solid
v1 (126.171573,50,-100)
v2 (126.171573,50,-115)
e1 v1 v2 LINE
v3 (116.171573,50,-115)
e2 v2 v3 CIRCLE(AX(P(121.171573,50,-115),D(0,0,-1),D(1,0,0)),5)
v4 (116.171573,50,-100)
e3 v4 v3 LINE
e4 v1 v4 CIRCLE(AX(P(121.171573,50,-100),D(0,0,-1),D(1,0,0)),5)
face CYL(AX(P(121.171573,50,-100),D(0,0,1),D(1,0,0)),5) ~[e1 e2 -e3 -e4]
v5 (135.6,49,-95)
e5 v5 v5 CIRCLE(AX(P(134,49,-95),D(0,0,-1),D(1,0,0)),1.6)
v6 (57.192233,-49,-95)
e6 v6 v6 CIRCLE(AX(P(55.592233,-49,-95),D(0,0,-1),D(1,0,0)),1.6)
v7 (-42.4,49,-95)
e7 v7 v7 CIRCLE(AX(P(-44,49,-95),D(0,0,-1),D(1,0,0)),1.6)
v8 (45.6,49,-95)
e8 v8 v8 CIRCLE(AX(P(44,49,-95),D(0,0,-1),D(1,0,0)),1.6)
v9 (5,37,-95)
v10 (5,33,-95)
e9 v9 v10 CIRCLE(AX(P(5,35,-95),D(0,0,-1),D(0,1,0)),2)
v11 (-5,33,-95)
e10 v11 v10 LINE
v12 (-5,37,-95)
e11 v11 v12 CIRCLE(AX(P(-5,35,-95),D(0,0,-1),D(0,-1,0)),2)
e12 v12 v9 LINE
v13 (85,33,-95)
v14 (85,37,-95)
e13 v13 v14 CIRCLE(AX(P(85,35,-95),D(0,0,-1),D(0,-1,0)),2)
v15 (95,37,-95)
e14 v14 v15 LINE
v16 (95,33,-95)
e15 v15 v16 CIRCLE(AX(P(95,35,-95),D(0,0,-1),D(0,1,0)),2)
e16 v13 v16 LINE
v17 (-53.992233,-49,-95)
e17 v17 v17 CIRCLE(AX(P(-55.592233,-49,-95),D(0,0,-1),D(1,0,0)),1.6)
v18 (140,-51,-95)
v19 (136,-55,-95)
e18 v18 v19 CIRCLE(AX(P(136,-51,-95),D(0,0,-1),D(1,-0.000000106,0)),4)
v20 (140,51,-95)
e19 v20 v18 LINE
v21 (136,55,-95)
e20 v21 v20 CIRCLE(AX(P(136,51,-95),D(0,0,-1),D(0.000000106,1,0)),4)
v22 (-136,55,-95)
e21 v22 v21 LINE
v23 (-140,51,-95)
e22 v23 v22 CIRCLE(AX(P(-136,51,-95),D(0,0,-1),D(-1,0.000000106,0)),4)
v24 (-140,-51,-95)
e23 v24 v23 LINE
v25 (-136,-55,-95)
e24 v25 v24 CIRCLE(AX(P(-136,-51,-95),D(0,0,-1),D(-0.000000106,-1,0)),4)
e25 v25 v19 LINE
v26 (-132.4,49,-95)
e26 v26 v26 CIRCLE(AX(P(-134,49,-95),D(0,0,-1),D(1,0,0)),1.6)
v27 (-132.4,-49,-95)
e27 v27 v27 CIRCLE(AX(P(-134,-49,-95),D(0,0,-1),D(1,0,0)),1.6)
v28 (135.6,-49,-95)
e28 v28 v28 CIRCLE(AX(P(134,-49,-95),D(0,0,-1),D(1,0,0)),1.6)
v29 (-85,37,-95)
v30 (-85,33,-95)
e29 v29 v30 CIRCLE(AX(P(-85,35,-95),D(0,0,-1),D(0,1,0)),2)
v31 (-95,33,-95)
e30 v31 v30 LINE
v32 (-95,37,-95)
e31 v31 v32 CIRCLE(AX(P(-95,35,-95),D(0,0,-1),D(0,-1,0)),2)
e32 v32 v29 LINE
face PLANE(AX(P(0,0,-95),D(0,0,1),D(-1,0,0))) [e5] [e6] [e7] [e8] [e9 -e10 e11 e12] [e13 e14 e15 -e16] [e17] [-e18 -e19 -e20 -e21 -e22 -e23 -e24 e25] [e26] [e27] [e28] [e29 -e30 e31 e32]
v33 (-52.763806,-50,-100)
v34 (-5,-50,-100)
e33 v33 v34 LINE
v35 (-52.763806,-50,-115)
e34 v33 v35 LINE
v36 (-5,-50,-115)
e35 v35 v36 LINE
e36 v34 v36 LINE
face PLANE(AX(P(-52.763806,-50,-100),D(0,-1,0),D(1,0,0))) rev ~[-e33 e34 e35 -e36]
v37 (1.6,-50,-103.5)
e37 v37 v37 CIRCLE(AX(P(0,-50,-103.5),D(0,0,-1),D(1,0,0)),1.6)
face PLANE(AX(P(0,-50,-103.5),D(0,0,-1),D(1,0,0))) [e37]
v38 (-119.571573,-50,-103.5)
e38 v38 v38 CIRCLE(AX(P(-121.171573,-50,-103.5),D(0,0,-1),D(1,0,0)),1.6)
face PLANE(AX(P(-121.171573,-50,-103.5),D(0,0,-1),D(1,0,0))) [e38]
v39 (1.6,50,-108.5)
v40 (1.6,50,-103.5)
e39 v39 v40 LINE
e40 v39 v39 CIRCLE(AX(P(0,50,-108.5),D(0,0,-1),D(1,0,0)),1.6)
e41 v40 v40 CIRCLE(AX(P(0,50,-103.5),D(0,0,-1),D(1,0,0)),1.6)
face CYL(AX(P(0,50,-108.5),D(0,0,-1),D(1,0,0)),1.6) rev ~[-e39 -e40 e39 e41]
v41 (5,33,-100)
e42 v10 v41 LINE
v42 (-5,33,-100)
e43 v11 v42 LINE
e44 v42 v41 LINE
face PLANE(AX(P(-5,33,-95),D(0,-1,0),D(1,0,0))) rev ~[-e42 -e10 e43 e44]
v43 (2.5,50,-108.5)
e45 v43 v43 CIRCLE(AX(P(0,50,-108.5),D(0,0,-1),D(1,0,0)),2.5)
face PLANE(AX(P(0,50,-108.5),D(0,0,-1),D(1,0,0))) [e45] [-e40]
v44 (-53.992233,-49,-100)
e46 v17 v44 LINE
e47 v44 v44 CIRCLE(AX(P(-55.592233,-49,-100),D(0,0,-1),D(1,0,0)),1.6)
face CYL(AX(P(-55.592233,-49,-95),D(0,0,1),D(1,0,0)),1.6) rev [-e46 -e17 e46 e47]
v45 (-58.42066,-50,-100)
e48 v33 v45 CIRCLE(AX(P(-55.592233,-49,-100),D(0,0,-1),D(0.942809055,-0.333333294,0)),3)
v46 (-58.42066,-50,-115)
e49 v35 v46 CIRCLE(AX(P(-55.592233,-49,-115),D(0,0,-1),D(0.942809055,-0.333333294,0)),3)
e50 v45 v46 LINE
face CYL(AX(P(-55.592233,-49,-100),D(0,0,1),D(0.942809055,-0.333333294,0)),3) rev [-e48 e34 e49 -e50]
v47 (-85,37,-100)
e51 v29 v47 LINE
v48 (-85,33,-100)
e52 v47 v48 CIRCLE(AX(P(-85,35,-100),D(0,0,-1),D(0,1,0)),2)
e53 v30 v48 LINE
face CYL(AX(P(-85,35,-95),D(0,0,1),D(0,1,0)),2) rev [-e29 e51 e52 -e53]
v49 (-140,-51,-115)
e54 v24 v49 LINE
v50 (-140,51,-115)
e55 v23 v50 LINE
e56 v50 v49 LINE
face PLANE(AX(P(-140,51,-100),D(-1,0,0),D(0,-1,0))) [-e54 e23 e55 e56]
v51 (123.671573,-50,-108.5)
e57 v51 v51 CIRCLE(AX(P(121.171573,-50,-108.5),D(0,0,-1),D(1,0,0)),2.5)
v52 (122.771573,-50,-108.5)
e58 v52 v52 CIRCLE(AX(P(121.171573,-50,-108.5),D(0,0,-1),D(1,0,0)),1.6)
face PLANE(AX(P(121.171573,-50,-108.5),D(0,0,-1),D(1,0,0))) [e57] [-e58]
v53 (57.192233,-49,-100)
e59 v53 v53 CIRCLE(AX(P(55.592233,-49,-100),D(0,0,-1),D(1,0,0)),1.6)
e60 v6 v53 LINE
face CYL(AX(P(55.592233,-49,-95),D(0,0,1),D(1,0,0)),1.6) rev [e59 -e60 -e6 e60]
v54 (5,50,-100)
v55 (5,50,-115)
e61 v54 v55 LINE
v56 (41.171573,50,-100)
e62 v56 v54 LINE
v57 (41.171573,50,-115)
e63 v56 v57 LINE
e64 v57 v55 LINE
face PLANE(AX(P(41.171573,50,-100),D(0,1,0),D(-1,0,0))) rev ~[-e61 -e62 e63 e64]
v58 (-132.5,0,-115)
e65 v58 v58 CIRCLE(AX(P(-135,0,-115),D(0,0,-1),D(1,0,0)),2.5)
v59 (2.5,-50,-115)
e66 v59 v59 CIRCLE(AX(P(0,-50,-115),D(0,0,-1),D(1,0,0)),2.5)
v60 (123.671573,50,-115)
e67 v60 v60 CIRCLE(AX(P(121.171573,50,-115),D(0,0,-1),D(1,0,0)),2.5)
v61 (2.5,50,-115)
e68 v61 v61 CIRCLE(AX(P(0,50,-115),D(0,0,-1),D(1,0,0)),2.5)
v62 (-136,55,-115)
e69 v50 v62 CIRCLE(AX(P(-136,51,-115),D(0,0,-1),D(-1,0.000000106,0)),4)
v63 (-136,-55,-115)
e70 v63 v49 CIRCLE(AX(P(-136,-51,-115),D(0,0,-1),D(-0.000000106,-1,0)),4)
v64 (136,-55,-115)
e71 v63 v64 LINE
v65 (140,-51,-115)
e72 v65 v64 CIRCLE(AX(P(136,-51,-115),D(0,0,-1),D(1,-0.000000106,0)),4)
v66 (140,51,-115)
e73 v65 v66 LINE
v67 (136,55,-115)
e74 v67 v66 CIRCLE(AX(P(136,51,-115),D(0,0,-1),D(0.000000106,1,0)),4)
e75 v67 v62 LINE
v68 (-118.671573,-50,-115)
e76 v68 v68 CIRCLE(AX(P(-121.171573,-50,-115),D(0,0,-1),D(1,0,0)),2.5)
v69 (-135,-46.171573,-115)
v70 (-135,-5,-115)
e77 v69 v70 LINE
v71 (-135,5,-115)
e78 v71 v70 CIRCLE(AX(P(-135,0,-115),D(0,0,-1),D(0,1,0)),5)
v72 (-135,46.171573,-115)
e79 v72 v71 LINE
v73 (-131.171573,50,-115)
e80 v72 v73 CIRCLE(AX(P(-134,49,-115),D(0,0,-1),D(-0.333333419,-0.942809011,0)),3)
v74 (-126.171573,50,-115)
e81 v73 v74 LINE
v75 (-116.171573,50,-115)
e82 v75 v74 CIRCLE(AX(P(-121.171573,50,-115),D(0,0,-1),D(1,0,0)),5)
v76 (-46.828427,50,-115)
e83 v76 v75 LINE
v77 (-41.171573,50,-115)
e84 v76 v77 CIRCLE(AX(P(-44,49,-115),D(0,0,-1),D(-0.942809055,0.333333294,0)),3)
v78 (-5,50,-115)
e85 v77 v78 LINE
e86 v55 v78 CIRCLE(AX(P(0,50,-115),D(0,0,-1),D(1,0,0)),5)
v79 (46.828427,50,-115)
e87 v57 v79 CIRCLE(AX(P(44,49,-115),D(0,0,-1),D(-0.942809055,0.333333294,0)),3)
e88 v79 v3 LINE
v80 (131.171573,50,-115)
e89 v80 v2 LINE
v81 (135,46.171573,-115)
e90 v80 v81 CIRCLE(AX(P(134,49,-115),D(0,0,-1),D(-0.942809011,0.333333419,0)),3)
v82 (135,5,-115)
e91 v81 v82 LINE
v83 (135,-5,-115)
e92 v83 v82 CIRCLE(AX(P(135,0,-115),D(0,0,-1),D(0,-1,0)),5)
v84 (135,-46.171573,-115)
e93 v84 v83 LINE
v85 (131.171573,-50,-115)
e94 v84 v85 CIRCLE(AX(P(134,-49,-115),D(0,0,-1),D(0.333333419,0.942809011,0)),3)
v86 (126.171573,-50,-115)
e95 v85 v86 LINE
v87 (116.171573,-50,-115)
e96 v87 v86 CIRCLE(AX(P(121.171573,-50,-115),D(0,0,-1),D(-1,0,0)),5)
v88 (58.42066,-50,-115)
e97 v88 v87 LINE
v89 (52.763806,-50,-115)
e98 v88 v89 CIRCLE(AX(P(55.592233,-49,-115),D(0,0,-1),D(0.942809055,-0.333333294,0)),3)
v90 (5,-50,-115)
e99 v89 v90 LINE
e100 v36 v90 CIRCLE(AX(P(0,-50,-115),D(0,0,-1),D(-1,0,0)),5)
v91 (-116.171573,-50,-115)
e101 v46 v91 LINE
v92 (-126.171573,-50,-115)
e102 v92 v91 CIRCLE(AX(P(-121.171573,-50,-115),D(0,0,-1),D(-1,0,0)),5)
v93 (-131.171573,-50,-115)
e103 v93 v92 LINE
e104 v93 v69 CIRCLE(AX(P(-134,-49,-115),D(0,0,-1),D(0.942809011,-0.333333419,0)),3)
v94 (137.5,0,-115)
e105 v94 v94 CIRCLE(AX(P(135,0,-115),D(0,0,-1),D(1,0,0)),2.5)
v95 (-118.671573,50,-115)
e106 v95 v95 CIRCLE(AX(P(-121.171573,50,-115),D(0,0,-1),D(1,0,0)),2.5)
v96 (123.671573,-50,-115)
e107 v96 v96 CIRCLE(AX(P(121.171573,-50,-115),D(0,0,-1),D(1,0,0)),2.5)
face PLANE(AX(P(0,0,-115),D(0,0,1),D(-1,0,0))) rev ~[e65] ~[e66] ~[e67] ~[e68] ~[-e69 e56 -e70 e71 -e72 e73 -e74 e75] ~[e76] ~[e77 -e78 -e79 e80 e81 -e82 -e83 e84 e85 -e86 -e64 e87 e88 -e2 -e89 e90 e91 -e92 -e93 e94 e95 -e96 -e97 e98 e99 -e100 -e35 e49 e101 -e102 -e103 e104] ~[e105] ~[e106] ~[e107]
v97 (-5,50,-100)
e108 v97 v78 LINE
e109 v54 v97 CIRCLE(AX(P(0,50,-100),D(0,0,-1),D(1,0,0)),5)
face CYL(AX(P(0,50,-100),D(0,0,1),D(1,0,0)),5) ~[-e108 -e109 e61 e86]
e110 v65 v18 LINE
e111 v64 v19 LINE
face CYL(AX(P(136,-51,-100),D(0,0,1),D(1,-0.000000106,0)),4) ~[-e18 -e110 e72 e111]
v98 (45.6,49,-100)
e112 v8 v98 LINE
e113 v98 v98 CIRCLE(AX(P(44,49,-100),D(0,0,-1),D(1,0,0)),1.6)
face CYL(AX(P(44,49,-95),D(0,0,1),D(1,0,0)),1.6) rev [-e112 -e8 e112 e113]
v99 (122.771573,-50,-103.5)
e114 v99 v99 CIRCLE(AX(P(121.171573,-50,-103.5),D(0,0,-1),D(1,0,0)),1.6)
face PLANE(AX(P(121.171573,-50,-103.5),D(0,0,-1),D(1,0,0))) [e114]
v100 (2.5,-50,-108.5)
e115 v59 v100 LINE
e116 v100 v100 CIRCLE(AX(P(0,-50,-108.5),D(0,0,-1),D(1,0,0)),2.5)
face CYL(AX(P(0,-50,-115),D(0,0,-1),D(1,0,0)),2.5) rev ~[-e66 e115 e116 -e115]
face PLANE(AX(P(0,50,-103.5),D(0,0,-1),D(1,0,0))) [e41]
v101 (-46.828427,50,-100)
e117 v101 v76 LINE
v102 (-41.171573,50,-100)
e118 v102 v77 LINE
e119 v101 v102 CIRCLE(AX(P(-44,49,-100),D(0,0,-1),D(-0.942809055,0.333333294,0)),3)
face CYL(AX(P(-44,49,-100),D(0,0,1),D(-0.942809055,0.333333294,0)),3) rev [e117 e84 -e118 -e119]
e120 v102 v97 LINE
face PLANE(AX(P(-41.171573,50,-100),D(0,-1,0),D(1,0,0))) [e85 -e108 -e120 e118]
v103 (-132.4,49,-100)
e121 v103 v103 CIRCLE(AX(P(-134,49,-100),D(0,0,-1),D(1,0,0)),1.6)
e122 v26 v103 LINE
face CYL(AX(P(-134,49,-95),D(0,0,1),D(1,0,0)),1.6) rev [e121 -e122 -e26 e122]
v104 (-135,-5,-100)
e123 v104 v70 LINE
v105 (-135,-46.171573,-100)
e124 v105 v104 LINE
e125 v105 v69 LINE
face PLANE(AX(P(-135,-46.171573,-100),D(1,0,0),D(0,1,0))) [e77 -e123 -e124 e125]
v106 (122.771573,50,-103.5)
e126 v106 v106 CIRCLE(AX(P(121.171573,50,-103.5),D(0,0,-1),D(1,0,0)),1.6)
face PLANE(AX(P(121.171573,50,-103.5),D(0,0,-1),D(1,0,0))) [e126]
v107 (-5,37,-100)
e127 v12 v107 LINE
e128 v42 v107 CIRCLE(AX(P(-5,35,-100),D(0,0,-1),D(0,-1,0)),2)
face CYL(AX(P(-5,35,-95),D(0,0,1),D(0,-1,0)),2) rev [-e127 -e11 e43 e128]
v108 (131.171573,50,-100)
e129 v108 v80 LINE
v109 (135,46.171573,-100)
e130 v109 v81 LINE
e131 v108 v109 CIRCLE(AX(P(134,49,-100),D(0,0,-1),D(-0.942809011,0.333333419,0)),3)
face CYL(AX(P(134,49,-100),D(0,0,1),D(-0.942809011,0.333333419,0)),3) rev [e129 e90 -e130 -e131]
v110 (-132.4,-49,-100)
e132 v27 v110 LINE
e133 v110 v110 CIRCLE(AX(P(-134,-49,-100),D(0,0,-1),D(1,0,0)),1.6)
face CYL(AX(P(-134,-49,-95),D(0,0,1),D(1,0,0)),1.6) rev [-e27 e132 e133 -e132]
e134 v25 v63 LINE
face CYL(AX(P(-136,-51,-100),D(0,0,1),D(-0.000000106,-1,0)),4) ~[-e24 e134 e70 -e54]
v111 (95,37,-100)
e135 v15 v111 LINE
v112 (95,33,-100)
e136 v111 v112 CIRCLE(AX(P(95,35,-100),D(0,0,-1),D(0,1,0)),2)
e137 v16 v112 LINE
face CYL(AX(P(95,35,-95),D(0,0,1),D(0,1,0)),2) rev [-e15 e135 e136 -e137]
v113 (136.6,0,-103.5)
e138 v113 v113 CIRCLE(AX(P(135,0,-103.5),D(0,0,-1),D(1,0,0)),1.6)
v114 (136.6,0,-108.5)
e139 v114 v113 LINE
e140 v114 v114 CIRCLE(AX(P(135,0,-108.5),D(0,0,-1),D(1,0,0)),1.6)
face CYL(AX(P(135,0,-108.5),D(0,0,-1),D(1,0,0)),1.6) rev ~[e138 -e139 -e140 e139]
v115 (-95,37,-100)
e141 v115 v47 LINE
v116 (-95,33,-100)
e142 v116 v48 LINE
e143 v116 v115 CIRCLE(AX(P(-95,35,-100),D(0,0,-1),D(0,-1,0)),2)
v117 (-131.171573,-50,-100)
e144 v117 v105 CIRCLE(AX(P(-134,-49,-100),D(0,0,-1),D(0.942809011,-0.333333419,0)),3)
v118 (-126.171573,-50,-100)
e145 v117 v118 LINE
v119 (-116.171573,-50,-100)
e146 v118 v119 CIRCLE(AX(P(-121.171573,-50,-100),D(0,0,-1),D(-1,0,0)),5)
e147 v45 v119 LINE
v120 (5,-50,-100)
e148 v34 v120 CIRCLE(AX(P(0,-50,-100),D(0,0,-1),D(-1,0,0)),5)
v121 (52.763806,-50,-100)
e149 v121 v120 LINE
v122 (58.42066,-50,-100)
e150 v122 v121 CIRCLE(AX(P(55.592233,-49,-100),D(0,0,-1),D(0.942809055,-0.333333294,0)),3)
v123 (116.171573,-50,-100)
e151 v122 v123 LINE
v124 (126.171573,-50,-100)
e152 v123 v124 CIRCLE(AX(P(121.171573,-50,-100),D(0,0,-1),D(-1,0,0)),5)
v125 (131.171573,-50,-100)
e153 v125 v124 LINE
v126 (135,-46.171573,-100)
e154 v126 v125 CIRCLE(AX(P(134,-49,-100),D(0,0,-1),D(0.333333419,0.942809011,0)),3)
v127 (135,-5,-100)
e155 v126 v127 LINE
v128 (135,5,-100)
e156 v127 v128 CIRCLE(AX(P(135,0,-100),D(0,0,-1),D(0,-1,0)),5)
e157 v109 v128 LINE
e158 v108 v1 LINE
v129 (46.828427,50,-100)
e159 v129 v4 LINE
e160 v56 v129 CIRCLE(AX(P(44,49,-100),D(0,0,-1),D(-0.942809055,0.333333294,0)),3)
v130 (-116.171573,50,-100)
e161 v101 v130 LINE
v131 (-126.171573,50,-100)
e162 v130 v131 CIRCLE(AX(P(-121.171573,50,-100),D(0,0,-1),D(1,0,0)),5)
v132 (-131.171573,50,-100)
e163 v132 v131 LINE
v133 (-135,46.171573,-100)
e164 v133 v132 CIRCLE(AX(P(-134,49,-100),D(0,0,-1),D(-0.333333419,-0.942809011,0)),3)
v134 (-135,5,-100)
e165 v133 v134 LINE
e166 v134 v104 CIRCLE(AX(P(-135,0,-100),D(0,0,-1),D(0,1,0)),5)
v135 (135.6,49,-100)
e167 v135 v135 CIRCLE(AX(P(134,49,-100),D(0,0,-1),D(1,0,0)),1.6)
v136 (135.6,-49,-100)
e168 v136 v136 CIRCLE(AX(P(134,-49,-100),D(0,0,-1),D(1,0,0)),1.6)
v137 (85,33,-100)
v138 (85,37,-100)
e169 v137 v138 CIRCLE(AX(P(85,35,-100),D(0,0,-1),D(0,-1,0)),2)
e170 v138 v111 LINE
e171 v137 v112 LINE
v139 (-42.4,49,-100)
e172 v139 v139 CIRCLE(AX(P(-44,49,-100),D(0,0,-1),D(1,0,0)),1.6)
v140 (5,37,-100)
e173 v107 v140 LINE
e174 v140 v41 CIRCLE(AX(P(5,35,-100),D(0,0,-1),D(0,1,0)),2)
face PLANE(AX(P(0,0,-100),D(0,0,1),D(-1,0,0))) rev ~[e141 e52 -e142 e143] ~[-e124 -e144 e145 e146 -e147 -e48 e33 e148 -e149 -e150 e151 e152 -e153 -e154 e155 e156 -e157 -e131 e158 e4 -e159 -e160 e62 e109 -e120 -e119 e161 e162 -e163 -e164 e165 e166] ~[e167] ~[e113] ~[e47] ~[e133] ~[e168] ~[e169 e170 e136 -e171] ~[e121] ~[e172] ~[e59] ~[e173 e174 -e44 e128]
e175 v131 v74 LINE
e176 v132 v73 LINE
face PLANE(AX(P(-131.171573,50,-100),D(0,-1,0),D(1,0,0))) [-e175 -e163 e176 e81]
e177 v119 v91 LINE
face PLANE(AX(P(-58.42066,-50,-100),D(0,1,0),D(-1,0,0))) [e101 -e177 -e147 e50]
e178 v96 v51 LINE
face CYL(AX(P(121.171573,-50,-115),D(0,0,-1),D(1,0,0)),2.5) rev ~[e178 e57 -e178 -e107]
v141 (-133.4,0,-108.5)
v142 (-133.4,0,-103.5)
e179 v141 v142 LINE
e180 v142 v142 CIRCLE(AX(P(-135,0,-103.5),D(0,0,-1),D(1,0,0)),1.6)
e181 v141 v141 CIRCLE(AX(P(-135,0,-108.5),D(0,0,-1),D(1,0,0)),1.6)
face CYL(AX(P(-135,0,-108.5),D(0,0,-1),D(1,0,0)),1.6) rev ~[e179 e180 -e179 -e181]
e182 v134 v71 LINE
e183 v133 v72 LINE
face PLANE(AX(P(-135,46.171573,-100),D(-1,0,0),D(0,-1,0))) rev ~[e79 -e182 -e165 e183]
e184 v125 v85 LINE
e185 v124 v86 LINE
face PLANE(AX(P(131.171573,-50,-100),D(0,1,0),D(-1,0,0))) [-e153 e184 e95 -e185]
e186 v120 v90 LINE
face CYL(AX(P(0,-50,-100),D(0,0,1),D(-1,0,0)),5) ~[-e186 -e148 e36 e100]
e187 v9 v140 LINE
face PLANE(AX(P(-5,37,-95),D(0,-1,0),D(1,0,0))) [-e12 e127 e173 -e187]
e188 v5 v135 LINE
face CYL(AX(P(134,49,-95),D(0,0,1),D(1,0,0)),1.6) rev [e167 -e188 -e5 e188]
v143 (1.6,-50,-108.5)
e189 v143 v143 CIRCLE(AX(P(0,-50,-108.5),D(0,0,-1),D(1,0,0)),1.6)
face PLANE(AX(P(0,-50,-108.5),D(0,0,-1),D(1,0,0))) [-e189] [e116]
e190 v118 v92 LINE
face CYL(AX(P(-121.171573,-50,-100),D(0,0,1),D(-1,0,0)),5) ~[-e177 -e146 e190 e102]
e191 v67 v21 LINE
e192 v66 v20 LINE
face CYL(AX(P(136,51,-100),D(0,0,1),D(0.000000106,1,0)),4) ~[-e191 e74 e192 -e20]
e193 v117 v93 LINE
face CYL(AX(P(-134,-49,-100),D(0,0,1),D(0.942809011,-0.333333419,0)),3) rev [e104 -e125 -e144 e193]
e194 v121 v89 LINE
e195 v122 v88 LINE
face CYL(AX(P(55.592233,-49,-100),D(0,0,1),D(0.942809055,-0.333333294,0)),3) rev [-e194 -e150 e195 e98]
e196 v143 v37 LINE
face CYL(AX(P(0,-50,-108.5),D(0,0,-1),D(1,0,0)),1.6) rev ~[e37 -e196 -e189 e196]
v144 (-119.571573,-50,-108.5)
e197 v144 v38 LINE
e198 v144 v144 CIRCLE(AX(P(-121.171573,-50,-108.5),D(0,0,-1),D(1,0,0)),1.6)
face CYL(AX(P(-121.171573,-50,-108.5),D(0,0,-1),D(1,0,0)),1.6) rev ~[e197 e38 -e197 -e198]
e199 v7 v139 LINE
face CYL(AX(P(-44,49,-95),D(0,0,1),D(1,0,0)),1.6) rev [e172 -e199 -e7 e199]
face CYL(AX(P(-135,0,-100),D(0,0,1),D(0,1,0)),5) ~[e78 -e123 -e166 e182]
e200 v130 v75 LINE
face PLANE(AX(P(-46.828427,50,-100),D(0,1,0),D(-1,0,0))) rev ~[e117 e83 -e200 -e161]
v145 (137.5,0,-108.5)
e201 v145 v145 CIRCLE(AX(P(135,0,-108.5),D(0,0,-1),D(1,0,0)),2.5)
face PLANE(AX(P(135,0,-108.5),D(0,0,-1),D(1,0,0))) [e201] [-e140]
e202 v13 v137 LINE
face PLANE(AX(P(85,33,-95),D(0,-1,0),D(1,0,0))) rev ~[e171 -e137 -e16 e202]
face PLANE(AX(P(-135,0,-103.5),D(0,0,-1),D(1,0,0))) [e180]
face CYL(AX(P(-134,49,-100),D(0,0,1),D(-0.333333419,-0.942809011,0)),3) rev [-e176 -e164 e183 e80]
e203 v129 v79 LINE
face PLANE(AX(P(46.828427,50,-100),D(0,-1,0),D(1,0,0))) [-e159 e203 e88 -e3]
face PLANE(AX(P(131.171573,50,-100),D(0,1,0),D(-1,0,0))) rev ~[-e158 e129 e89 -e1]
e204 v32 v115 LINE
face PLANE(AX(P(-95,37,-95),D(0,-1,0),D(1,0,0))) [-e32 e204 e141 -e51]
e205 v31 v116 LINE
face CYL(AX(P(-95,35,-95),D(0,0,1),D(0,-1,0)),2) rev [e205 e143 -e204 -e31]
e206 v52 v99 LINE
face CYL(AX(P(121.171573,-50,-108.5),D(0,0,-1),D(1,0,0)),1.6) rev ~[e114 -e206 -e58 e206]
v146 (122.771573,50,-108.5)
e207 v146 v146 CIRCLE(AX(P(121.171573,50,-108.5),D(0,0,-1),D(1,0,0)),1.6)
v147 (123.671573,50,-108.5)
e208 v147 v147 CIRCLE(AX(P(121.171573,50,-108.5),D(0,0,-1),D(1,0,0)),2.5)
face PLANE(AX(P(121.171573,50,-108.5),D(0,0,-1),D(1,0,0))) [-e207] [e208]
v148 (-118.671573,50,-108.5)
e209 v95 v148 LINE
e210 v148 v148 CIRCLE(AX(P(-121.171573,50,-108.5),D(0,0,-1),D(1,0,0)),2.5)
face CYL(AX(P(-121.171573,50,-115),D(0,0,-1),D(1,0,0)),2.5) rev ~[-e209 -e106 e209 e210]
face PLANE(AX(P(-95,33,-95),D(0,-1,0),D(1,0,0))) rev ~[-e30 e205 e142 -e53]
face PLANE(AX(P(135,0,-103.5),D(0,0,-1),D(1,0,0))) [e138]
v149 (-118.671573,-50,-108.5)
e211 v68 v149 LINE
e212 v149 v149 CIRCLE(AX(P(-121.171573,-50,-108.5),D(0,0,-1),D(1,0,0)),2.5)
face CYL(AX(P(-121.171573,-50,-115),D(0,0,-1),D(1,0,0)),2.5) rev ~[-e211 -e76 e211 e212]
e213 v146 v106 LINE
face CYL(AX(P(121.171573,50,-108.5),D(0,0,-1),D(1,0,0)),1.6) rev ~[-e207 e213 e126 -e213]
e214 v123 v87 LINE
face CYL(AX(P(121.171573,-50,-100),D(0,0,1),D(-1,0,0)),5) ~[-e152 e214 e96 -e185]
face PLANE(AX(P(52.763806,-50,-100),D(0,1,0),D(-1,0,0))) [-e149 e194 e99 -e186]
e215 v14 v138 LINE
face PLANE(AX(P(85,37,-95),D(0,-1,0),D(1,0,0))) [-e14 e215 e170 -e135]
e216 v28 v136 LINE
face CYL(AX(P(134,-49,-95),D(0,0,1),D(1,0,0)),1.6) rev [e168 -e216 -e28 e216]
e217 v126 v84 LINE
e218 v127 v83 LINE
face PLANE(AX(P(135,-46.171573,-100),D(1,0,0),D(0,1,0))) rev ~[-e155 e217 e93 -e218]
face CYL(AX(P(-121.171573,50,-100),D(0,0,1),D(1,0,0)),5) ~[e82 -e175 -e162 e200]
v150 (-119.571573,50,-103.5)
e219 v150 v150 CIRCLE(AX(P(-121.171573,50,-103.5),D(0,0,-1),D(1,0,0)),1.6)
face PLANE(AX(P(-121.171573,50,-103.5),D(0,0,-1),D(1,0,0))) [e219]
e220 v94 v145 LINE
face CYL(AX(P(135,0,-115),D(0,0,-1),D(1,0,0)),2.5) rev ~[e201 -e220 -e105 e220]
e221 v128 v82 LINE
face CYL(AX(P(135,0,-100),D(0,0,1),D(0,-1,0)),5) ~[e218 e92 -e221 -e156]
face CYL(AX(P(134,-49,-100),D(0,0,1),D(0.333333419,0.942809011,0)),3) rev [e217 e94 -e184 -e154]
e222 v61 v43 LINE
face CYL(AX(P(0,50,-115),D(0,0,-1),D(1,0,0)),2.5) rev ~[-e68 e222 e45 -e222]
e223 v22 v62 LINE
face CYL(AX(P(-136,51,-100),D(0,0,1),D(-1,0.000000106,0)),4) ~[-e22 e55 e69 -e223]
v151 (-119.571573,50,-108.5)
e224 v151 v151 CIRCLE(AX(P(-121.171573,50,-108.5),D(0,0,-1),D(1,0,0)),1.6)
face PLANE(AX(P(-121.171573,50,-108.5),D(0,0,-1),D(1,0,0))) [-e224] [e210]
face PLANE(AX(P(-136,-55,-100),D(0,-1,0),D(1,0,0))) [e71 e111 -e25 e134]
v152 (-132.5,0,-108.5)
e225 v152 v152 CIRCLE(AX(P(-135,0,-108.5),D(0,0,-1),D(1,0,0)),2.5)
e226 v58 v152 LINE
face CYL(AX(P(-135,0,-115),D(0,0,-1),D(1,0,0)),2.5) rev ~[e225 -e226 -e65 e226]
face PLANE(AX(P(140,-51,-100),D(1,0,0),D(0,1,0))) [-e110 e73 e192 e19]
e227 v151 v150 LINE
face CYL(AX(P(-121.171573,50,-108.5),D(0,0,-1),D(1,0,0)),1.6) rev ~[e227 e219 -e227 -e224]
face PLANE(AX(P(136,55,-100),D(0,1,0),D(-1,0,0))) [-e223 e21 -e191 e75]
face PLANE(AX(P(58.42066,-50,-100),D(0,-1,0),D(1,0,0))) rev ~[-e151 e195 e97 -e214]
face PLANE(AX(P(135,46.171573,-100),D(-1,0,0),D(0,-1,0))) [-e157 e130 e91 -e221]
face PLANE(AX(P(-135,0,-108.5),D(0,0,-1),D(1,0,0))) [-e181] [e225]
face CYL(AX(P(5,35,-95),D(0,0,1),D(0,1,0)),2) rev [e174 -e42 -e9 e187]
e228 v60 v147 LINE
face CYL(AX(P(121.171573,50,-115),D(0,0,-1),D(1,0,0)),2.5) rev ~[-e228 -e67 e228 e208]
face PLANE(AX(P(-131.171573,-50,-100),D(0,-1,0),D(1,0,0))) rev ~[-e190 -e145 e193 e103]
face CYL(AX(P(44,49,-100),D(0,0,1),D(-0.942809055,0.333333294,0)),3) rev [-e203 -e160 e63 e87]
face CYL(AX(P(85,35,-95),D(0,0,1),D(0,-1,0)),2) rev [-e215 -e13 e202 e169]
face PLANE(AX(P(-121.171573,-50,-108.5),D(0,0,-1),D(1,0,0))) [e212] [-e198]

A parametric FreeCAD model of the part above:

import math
import FreeCAD as App
import Part
import Sketcher
Q = App.Units.Quantity

doc = App.newDocument("Part")
body = doc.addObject("PartDesign::Body", "Body")

sketch1 = body.newObject("Sketcher::SketchObject", "Sketch")
sketch1.AttachmentSupport = (doc.getObject("XY_Plane"), [""])
sketch1.MapMode = "FlatFace"
sketch1.AttachmentOffset = App.Placement(App.Vector(0, 0, -95), App.Rotation())
sketch1.addGeometry(Part.LineSegment(App.Vector(136, -55, 0), App.Vector(-136, -55, 0)), False)
sketch1.addGeometry(Part.ArcOfCircle(Part.Circle(App.Vector(-136, -51, 0), App.Vector(0, 0, 1), 4), math.radians(-180), math.radians(-90)), False)
sketch1.addGeometry(Part.LineSegment(App.Vector(-140, -51, 0), App.Vector(-140, 51, 0)), False)
sketch1.addGeometry(Part.ArcOfCircle(Part.Circle(App.Vector(-136, 51, 0), App.Vector(0, 0, 1), 4), math.radians(90), math.radians(180)), False)
sketch1.addGeometry(Part.LineSegment(App.Vector(-136, 55, 0), App.Vector(136, 55, 0)), False)
sketch1.addGeometry(Part.ArcOfCircle(Part.Circle(App.Vector(136, 51, 0), App.Vector(0, 0, 1), 4), math.radians(0), math.radians(90)), False)
sketch1.addGeometry(Part.LineSegment(App.Vector(140, 51, 0), App.Vector(140, -51, 0)), False)
sketch1.addGeometry(Part.ArcOfCircle(Part.Circle(App.Vector(136, -51, 0), App.Vector(0, 0, 1), 4), math.radians(-90), math.radians(0)), False)
sketch1.addGeometry(Part.Circle(App.Vector(134, 49, 0), App.Vector(0, 0, 1), 1.6), False)
sketch1.addGeometry(Part.LineSegment(App.Vector(85, 33, 0), App.Vector(95, 33, 0)), False)
sketch1.addGeometry(Part.ArcOfCircle(Part.Circle(App.Vector(95, 35, 0), App.Vector(0, 0, 1), 2), math.radians(-90), math.radians(90)), False)
sketch1.addGeometry(Part.LineSegment(App.Vector(95, 37, 0), App.Vector(85, 37, 0)), False)
sketch1.addGeometry(Part.ArcOfCircle(Part.Circle(App.Vector(85, 35, 0), App.Vector(0, 0, 1), 2), math.radians(90), math.radians(270)), False)
sketch1.addGeometry(Part.Circle(App.Vector(44, 49, 0), App.Vector(0, 0, 1), 1.6), False)
sketch1.addGeometry(Part.LineSegment(App.Vector(-5, 33, 0), App.Vector(5, 33, 0)), False)
sketch1.addGeometry(Part.ArcOfCircle(Part.Circle(App.Vector(5, 35, 0), App.Vector(0, 0, 1), 2), math.radians(-90), math.radians(90)), False)
sketch1.addGeometry(Part.LineSegment(App.Vector(5, 37, 0), App.Vector(-5, 37, 0)), False)
sketch1.addGeometry(Part.ArcOfCircle(Part.Circle(App.Vector(-5, 35, 0), App.Vector(0, 0, 1), 2), math.radians(90), math.radians(270)), False)
sketch1.addGeometry(Part.Circle(App.Vector(-44, 49, 0), App.Vector(0, 0, 1), 1.6), False)
sketch1.addGeometry(Part.Circle(App.Vector(-134, 49, 0), App.Vector(0, 0, 1), 1.6), False)
sketch1.addGeometry(Part.LineSegment(App.Vector(-95, 33, 0), App.Vector(-85, 33, 0)), False)
sketch1.addGeometry(Part.ArcOfCircle(Part.Circle(App.Vector(-85, 35, 0), App.Vector(0, 0, 1), 2), math.radians(-90), math.radians(90)), False)
sketch1.addGeometry(Part.LineSegment(App.Vector(-85, 37, 0), App.Vector(-95, 37, 0)), False)
sketch1.addGeometry(Part.ArcOfCircle(Part.Circle(App.Vector(-95, 35, 0), App.Vector(0, 0, 1), 2), math.radians(90), math.radians(270)), False)
sketch1.addGeometry(Part.Circle(App.Vector(134, -49, 0), App.Vector(0, 0, 1), 1.6), False)
sketch1.addGeometry(Part.Circle(App.Vector(55.6, -49, 0), App.Vector(0, 0, 1), 1.6), False)
sketch1.addGeometry(Part.Circle(App.Vector(-55.6, -49, 0), App.Vector(0, 0, 1), 1.6), False)
sketch1.addGeometry(Part.Circle(App.Vector(-134, -49, 0), App.Vector(0, 0, 1), 1.6), False)
sketch1.addConstraint(Sketcher.Constraint("Tangent", 0, 2, 1, 2))
sketch1.addConstraint(Sketcher.Constraint("Tangent", 1, 1, 2, 1))
sketch1.addConstraint(Sketcher.Constraint("Tangent", 2, 2, 3, 2))
sketch1.addConstraint(Sketcher.Constraint("Tangent", 3, 1, 4, 1))
sketch1.addConstraint(Sketcher.Constraint("Tangent", 4, 2, 5, 2))
sketch1.addConstraint(Sketcher.Constraint("Tangent", 5, 1, 6, 1))
sketch1.addConstraint(Sketcher.Constraint("Tangent", 6, 2, 7, 2))
sketch1.addConstraint(Sketcher.Constraint("Tangent", 7, 1, 0, 1))
sketch1.addConstraint(Sketcher.Constraint("Tangent", 9, 2, 10, 1))
sketch1.addConstraint(Sketcher.Constraint("Tangent", 10, 2, 11, 1))
sketch1.addConstraint(Sketcher.Constraint("Tangent", 11, 2, 12, 1))
sketch1.addConstraint(Sketcher.Constraint("Tangent", 12, 2, 9, 1))
sketch1.addConstraint(Sketcher.Constraint("Tangent", 14, 2, 15, 1))
sketch1.addConstraint(Sketcher.Constraint("Tangent", 15, 2, 16, 1))
sketch1.addConstraint(Sketcher.Constraint("Tangent", 16, 2, 17, 1))
sketch1.addConstraint(Sketcher.Constraint("Tangent", 17, 2, 14, 1))
sketch1.addConstraint(Sketcher.Constraint("Tangent", 20, 2, 21, 1))
sketch1.addConstraint(Sketcher.Constraint("Tangent", 21, 2, 22, 1))
sketch1.addConstraint(Sketcher.Constraint("Tangent", 22, 2, 23, 1))
sketch1.addConstraint(Sketcher.Constraint("Tangent", 23, 2, 20, 1))
sketch1.addConstraint(Sketcher.Constraint("Horizontal", 0))
sketch1.addConstraint(Sketcher.Constraint("Vertical", 2))
sketch1.addConstraint(Sketcher.Constraint("Horizontal", 4))
sketch1.addConstraint(Sketcher.Constraint("Vertical", 6))
sketch1.addConstraint(Sketcher.Constraint("Horizontal", 9))
sketch1.addConstraint(Sketcher.Constraint("Horizontal", 11))
sketch1.addConstraint(Sketcher.Constraint("Horizontal", 14))
sketch1.addConstraint(Sketcher.Constraint("Horizontal", 16))
sketch1.addConstraint(Sketcher.Constraint("Horizontal", 20))
sketch1.addConstraint(Sketcher.Constraint("Horizontal", 22))
sketch1.addConstraint(Sketcher.Constraint("Equal", 1, 3))
sketch1.addConstraint(Sketcher.Constraint("Equal", 3, 5))
sketch1.addConstraint(Sketcher.Constraint("Equal", 5, 7))
sketch1.addConstraint(Sketcher.Constraint("Equal", 8, 13))
sketch1.addConstraint(Sketcher.Constraint("Equal", 12, 15))
sketch1.addConstraint(Sketcher.Constraint("Equal", 13, 18))
sketch1.addConstraint(Sketcher.Constraint("Equal", 18, 19))
sketch1.addConstraint(Sketcher.Constraint("Equal", 17, 21))
sketch1.addConstraint(Sketcher.Constraint("Equal", 19, 24))
sketch1.addConstraint(Sketcher.Constraint("Equal", 24, 25))
sketch1.addConstraint(Sketcher.Constraint("Equal", 25, 26))
sketch1.addConstraint(Sketcher.Constraint("Equal", 26, 27))
sketch1.addConstraint(Sketcher.Constraint("Symmetric", 1, 3, 5, 3, -1, 1))
sketch1.addConstraint(Sketcher.Constraint("Symmetric", 19, 3, 24, 3, -1, 1))
sketch1.addConstraint(Sketcher.Constraint("Symmetric", 8, 3, 27, 3, -1, 1))
sketch1.addConstraint(Sketcher.Constraint("Symmetric", 13, 3, 18, 3, -2))
sketch1.addConstraint(Sketcher.Constraint("Symmetric", 8, 3, 19, 3, -2))
sketch1.addConstraint(Sketcher.Constraint("Symmetric", 12, 3, 21, 3, -2))
sketch1.addConstraint(Sketcher.Constraint("Symmetric", 25, 3, 26, 3, -2))
sketch1.addConstraint(Sketcher.Constraint("Horizontal", 8, 3, 13, 3))
sketch1.addConstraint(Sketcher.Constraint("Horizontal", 12, 3, 15, 3))
sketch1.addConstraint(Sketcher.Constraint("Horizontal", 24, 3, 25, 3))
sketch1.addConstraint(Sketcher.Constraint("Equal", 11, 14))
sketch1.addConstraint(Sketcher.Constraint("Equal", 16, 20))
sketch1.addConstraint(Sketcher.Constraint("Radius", 1, Q("4 mm")))
sketch1.addConstraint(Sketcher.Constraint("Radius", 10, Q("2 mm")))
sketch1.addConstraint(Sketcher.Constraint("Diameter", 8, Q("3.2 mm")))
sketch1.addConstraint(Sketcher.Constraint("DistanceX", 0, 2, 0, 1, Q("272 mm")))
sketch1.addConstraint(Sketcher.Constraint("DistanceX", 9, 1, 9, 2, Q("10 mm")))
sketch1.addConstraint(Sketcher.Constraint("DistanceY", 2, 1, 2, 2, Q("102 mm")))
sketch1.addConstraint(Sketcher.Constraint("DistanceX", -1, 1, 8, 3, Q("134 mm")))
sketch1.addConstraint(Sketcher.Constraint("DistanceY", -1, 1, 8, 3, Q("49 mm")))
sketch1.addConstraint(Sketcher.Constraint("DistanceX", -1, 1, 10, 3, Q("95 mm")))
sketch1.addConstraint(Sketcher.Constraint("DistanceY", -1, 1, 10, 3, Q("35 mm")))
sketch1.addConstraint(Sketcher.Constraint("DistanceX", -1, 1, 13, 3, Q("44 mm")))
sketch1.addConstraint(Sketcher.Constraint("DistanceX", -1, 1, 15, 3, Q("5 mm")))
sketch1.addConstraint(Sketcher.Constraint("DistanceX", -1, 1, 25, 3, Q("55.592233 mm")))
pad1 = body.newObject("PartDesign::Pad", "Pad")
pad1.Profile = sketch1
pad1.Length = 5
pad1.Reversed = True

sketch2 = body.newObject("Sketcher::SketchObject", "Sketch001")
sketch2.AttachmentSupport = (doc.getObject("XY_Plane"), [""])
sketch2.MapMode = "FlatFace"
sketch2.AttachmentOffset = App.Placement(App.Vector(0, 0, -100), App.Rotation())
sketch2.addGeometry(Part.LineSegment(App.Vector(136, -55, 0), App.Vector(-136, -55, 0)), False)
sketch2.addGeometry(Part.ArcOfCircle(Part.Circle(App.Vector(-136, -51, 0), App.Vector(0, 0, 1), 4), math.radians(-180), math.radians(-90)), False)
sketch2.addGeometry(Part.LineSegment(App.Vector(-140, -51, 0), App.Vector(-140, 51, 0)), False)
sketch2.addGeometry(Part.ArcOfCircle(Part.Circle(App.Vector(-136, 51, 0), App.Vector(0, 0, 1), 4), math.radians(90), math.radians(180)), False)
sketch2.addGeometry(Part.LineSegment(App.Vector(-136, 55, 0), App.Vector(136, 55, 0)), False)
sketch2.addGeometry(Part.ArcOfCircle(Part.Circle(App.Vector(136, 51, 0), App.Vector(0, 0, 1), 4), math.radians(0), math.radians(90)), False)
sketch2.addGeometry(Part.LineSegment(App.Vector(140, 51, 0), App.Vector(140, -51, 0)), False)
sketch2.addGeometry(Part.ArcOfCircle(Part.Circle(App.Vector(136, -51, 0), App.Vector(0, 0, 1), 4), math.radians(-90), math.radians(0)), False)
sketch2.addGeometry(Part.LineSegment(App.Vector(-46.8, 50, 0), App.Vector(-116.2, 50, 0)), False)
sketch2.addGeometry(Part.ArcOfCircle(Part.Circle(App.Vector(-121.2, 50, 0), App.Vector(0, 0, 1), 5), math.radians(180), math.radians(360)), False)
sketch2.addGeometry(Part.LineSegment(App.Vector(-126.2, 50, 0), App.Vector(-131.2, 50, 0)), False)
sketch2.addGeometry(Part.ArcOfCircle(Part.Circle(App.Vector(-134, 49, 0), App.Vector(0, 0, 1), 3), math.radians(19), math.radians(251)), False)
sketch2.addGeometry(Part.LineSegment(App.Vector(-135, 46.2, 0), App.Vector(-135, 5, 0)), False)
sketch2.addGeometry(Part.ArcOfCircle(Part.Circle(App.Vector(-135, 0, 0), App.Vector(0, 0, 1), 5), math.radians(-90), math.radians(90)), False)
sketch2.addGeometry(Part.LineSegment(App.Vector(-135, -5, 0), App.Vector(-135, -46.2, 0)), False)
sketch2.addGeometry(Part.ArcOfCircle(Part.Circle(App.Vector(-134, -49, 0), App.Vector(0, 0, 1), 3), math.radians(109), math.radians(341)), False)
sketch2.addGeometry(Part.LineSegment(App.Vector(-131.2, -50, 0), App.Vector(-126.2, -50, 0)), False)
sketch2.addGeometry(Part.ArcOfCircle(Part.Circle(App.Vector(-121.2, -50, 0), App.Vector(0, 0, 1), 5), math.radians(0), math.radians(180)), False)
sketch2.addGeometry(Part.LineSegment(App.Vector(-116.2, -50, 0), App.Vector(-58.4, -50, 0)), False)
sketch2.addGeometry(Part.ArcOfCircle(Part.Circle(App.Vector(-55.6, -49, 0), App.Vector(0, 0, 1), 3), math.radians(-161), math.radians(-19)), False)
sketch2.addGeometry(Part.LineSegment(App.Vector(-52.8, -50, 0), App.Vector(-5, -50, 0)), False)
sketch2.addGeometry(Part.ArcOfCircle(Part.Circle(App.Vector(0, -50, 0), App.Vector(0, 0, 1), 5), math.radians(0), math.radians(180)), False)
sketch2.addGeometry(Part.LineSegment(App.Vector(5, -50, 0), App.Vector(52.8, -50, 0)), False)
sketch2.addGeometry(Part.ArcOfCircle(Part.Circle(App.Vector(55.6, -49, 0), App.Vector(0, 0, 1), 3), math.radians(-161), math.radians(-19)), False)
sketch2.addGeometry(Part.LineSegment(App.Vector(58.4, -50, 0), App.Vector(116.2, -50, 0)), False)
sketch2.addGeometry(Part.ArcOfCircle(Part.Circle(App.Vector(121.2, -50, 0), App.Vector(0, 0, 1), 5), math.radians(0), math.radians(180)), False)
sketch2.addGeometry(Part.LineSegment(App.Vector(126.2, -50, 0), App.Vector(131.2, -50, 0)), False)
sketch2.addGeometry(Part.ArcOfCircle(Part.Circle(App.Vector(134, -49, 0), App.Vector(0, 0, 1), 3), math.radians(-161), math.radians(71)), False)
sketch2.addGeometry(Part.LineSegment(App.Vector(135, -46.2, 0), App.Vector(135, -5, 0)), False)
sketch2.addGeometry(Part.ArcOfCircle(Part.Circle(App.Vector(135, 0, 0), App.Vector(0, 0, 1), 5), math.radians(90), math.radians(270)), False)
sketch2.addGeometry(Part.LineSegment(App.Vector(135, 5, 0), App.Vector(135, 46.2, 0)), False)
sketch2.addGeometry(Part.ArcOfCircle(Part.Circle(App.Vector(134, 49, 0), App.Vector(0, 0, 1), 3), math.radians(-71), math.radians(161)), False)
sketch2.addGeometry(Part.LineSegment(App.Vector(131.2, 50, 0), App.Vector(126.2, 50, 0)), False)
sketch2.addGeometry(Part.ArcOfCircle(Part.Circle(App.Vector(121.2, 50, 0), App.Vector(0, 0, 1), 5), math.radians(180), math.radians(360)), False)
sketch2.addGeometry(Part.LineSegment(App.Vector(116.2, 50, 0), App.Vector(46.8, 50, 0)), False)
sketch2.addGeometry(Part.ArcOfCircle(Part.Circle(App.Vector(44, 49, 0), App.Vector(0, 0, 1), 3), math.radians(19), math.radians(161)), False)
sketch2.addGeometry(Part.LineSegment(App.Vector(41.2, 50, 0), App.Vector(5, 50, 0)), False)
sketch2.addGeometry(Part.ArcOfCircle(Part.Circle(App.Vector(0, 50, 0), App.Vector(0, 0, 1), 5), math.radians(180), math.radians(360)), False)
sketch2.addGeometry(Part.LineSegment(App.Vector(-5, 50, 0), App.Vector(-41.2, 50, 0)), False)
sketch2.addGeometry(Part.ArcOfCircle(Part.Circle(App.Vector(-44, 49, 0), App.Vector(0, 0, 1), 3), math.radians(19), math.radians(161)), False)
sketch2.addConstraint(Sketcher.Constraint("Tangent", 0, 2, 1, 2))
sketch2.addConstraint(Sketcher.Constraint("Tangent", 1, 1, 2, 1))
sketch2.addConstraint(Sketcher.Constraint("Tangent", 2, 2, 3, 2))
sketch2.addConstraint(Sketcher.Constraint("Tangent", 3, 1, 4, 1))
sketch2.addConstraint(Sketcher.Constraint("Tangent", 4, 2, 5, 2))
sketch2.addConstraint(Sketcher.Constraint("Tangent", 5, 1, 6, 1))
sketch2.addConstraint(Sketcher.Constraint("Tangent", 6, 2, 7, 2))
sketch2.addConstraint(Sketcher.Constraint("Tangent", 7, 1, 0, 1))
sketch2.addConstraint(Sketcher.Constraint("Coincident", 8, 2, 9, 2))
sketch2.addConstraint(Sketcher.Constraint("Coincident", 9, 1, 10, 1))
sketch2.addConstraint(Sketcher.Constraint("Coincident", 10, 2, 11, 1))
sketch2.addConstraint(Sketcher.Constraint("Coincident", 11, 2, 12, 1))
sketch2.addConstraint(Sketcher.Constraint("Coincident", 12, 2, 13, 2))
sketch2.addConstraint(Sketcher.Constraint("Coincident", 13, 1, 14, 1))
sketch2.addConstraint(Sketcher.Constraint("Coincident", 14, 2, 15, 1))
sketch2.addConstraint(Sketcher.Constraint("Coincident", 15, 2, 16, 1))
sketch2.addConstraint(Sketcher.Constraint("Coincident", 16, 2, 17, 2))
sketch2.addConstraint(Sketcher.Constraint("Coincident", 17, 1, 18, 1))
sketch2.addConstraint(Sketcher.Constraint("Coincident", 18, 2, 19, 1))
sketch2.addConstraint(Sketcher.Constraint("Coincident", 19, 2, 20, 1))
sketch2.addConstraint(Sketcher.Constraint("Coincident", 20, 2, 21, 2))
sketch2.addConstraint(Sketcher.Constraint("Coincident", 21, 1, 22, 1))
sketch2.addConstraint(Sketcher.Constraint("Coincident", 22, 2, 23, 1))
sketch2.addConstraint(Sketcher.Constraint("Coincident", 23, 2, 24, 1))
sketch2.addConstraint(Sketcher.Constraint("Coincident", 24, 2, 25, 2))
sketch2.addConstraint(Sketcher.Constraint("Coincident", 25, 1, 26, 1))
sketch2.addConstraint(Sketcher.Constraint("Coincident", 26, 2, 27, 1))
sketch2.addConstraint(Sketcher.Constraint("Coincident", 27, 2, 28, 1))
sketch2.addConstraint(Sketcher.Constraint("Coincident", 28, 2, 29, 2))
sketch2.addConstraint(Sketcher.Constraint("Coincident", 29, 1, 30, 1))
sketch2.addConstraint(Sketcher.Constraint("Coincident", 30, 2, 31, 1))
sketch2.addConstraint(Sketcher.Constraint("Coincident", 31, 2, 32, 1))
sketch2.addConstraint(Sketcher.Constraint("Coincident", 32, 2, 33, 2))
sketch2.addConstraint(Sketcher.Constraint("Coincident", 33, 1, 34, 1))
sketch2.addConstraint(Sketcher.Constraint("Coincident", 34, 2, 35, 1))
sketch2.addConstraint(Sketcher.Constraint("Coincident", 35, 2, 36, 1))
sketch2.addConstraint(Sketcher.Constraint("Coincident", 36, 2, 37, 2))
sketch2.addConstraint(Sketcher.Constraint("Coincident", 37, 1, 38, 1))
sketch2.addConstraint(Sketcher.Constraint("Coincident", 38, 2, 39, 1))
sketch2.addConstraint(Sketcher.Constraint("Coincident", 39, 2, 8, 1))
sketch2.addConstraint(Sketcher.Constraint("Horizontal", 0))
sketch2.addConstraint(Sketcher.Constraint("Vertical", 2))
sketch2.addConstraint(Sketcher.Constraint("Horizontal", 4))
sketch2.addConstraint(Sketcher.Constraint("Vertical", 6))
sketch2.addConstraint(Sketcher.Constraint("Horizontal", 8))
sketch2.addConstraint(Sketcher.Constraint("Horizontal", 10))
sketch2.addConstraint(Sketcher.Constraint("Vertical", 12))
sketch2.addConstraint(Sketcher.Constraint("Vertical", 14))
sketch2.addConstraint(Sketcher.Constraint("Horizontal", 16))
sketch2.addConstraint(Sketcher.Constraint("Horizontal", 18))
sketch2.addConstraint(Sketcher.Constraint("Horizontal", 20))
sketch2.addConstraint(Sketcher.Constraint("Horizontal", 22))
sketch2.addConstraint(Sketcher.Constraint("Horizontal", 24))
sketch2.addConstraint(Sketcher.Constraint("Horizontal", 26))
sketch2.addConstraint(Sketcher.Constraint("Vertical", 28))
sketch2.addConstraint(Sketcher.Constraint("Vertical", 30))
sketch2.addConstraint(Sketcher.Constraint("Horizontal", 32))
sketch2.addConstraint(Sketcher.Constraint("Horizontal", 34))
sketch2.addConstraint(Sketcher.Constraint("Horizontal", 36))
sketch2.addConstraint(Sketcher.Constraint("Horizontal", 38))
sketch2.addConstraint(Sketcher.Constraint("Equal", 1, 3))
sketch2.addConstraint(Sketcher.Constraint("Equal", 3, 5))
sketch2.addConstraint(Sketcher.Constraint("Equal", 5, 7))
sketch2.addConstraint(Sketcher.Constraint("Equal", 9, 13))
sketch2.addConstraint(Sketcher.Constraint("Equal", 11, 15))
sketch2.addConstraint(Sketcher.Constraint("Equal", 13, 17))
sketch2.addConstraint(Sketcher.Constraint("Equal", 15, 19))
sketch2.addConstraint(Sketcher.Constraint("Equal", 17, 21))
sketch2.addConstraint(Sketcher.Constraint("Equal", 19, 23))
sketch2.addConstraint(Sketcher.Constraint("Equal", 21, 25))
sketch2.addConstraint(Sketcher.Constraint("Equal", 23, 27))
sketch2.addConstraint(Sketcher.Constraint("Equal", 25, 29))
sketch2.addConstraint(Sketcher.Constraint("Equal", 27, 31))
sketch2.addConstraint(Sketcher.Constraint("Equal", 29, 33))
sketch2.addConstraint(Sketcher.Constraint("Equal", 31, 35))
sketch2.addConstraint(Sketcher.Constraint("Equal", 33, 37))
sketch2.addConstraint(Sketcher.Constraint("Equal", 35, 39))
sketch2.addConstraint(Sketcher.Constraint("Symmetric", 1, 3, 5, 3, -1, 1))
sketch2.addConstraint(Sketcher.Constraint("Symmetric", 9, 3, 25, 3, -1, 1))
sketch2.addConstraint(Sketcher.Constraint("Symmetric", 11, 3, 27, 3, -1, 1))
sketch2.addConstraint(Sketcher.Constraint("Symmetric", 13, 3, 29, 3, -1, 1))
sketch2.addConstraint(Sketcher.Constraint("Symmetric", 15, 3, 31, 3, -1, 1))
sketch2.addConstraint(Sketcher.Constraint("Symmetric", 17, 3, 33, 3, -1, 1))
sketch2.addConstraint(Sketcher.Constraint("Symmetric", 21, 3, 37, 3, -1, 1))
sketch2.addConstraint(Sketcher.Constraint("Symmetric", 19, 3, 23, 3, -2))
sketch2.addConstraint(Sketcher.Constraint("Symmetric", 17, 3, 25, 3, -2))
sketch2.addConstraint(Sketcher.Constraint("Symmetric", 15, 3, 27, 3, -2))
sketch2.addConstraint(Sketcher.Constraint("Symmetric", 35, 3, 39, 3, -2))
sketch2.addConstraint(Sketcher.Constraint("Symmetric", 20, 2, 21, 1, -2))
sketch2.addConstraint(Sketcher.Constraint("Symmetric", 13, 1, 28, 2, -2))
sketch2.addConstraint(Sketcher.Constraint("Horizontal", 15, 3, 19, 3))
sketch2.addConstraint(Sketcher.Constraint("Horizontal", 17, 3, 21, 3))
sketch2.addConstraint(Sketcher.Constraint("Horizontal", 31, 3, 35, 3))
sketch2.addConstraint(Sketcher.Constraint("Horizontal", 37, 3, 8, 2))
sketch2.addConstraint(Sketcher.Constraint("Horizontal", 8, 2, 9, 1))
sketch2.addConstraint(Sketcher.Constraint("Horizontal", 25, 3, 15, 2))
sketch2.addConstraint(Sketcher.Constraint("Horizontal", 16, 2, 17, 1))
sketch2.addConstraint(Sketcher.Constraint("Horizontal", 18, 2, 19, 2))
sketch2.addConstraint(Sketcher.Constraint("Horizontal", 22, 2, 23, 2))
sketch2.addConstraint(Sketcher.Constraint("Horizontal", 24, 2, 25, 1))
sketch2.addConstraint(Sketcher.Constraint("Horizontal", 11, 2, 30, 2))
sketch2.addConstraint(Sketcher.Constraint("Horizontal", 10, 2, 31, 2))
sketch2.addConstraint(Sketcher.Constraint("Horizontal", 32, 2, 33, 1))
sketch2.addConstraint(Sketcher.Constraint("Horizontal", 34, 2, 35, 2))
sketch2.addConstraint(Sketcher.Constraint("Horizontal", 36, 2, 37, 1))
sketch2.addConstraint(Sketcher.Constraint("Vertical", 13, 3, 11, 2))
sketch2.addConstraint(Sketcher.Constraint("Vertical", 12, 2, 13, 1))
sketch2.addConstraint(Sketcher.Constraint("Radius", 1, Q("4 mm")))
sketch2.addConstraint(Sketcher.Constraint("Radius", 9, Q("5 mm")))
sketch2.addConstraint(Sketcher.Constraint("Radius", 11, Q("3 mm")))
sketch2.addConstraint(Sketcher.Constraint("DistanceX", 0, 2, 0, 1, Q("272 mm")))
sketch2.addConstraint(Sketcher.Constraint("DistanceX", 10, 2, 10, 1, Q("5 mm")))
sketch2.addConstraint(Sketcher.Constraint("DistanceY", 2, 1, 2, 2, Q("102 mm")))
sketch2.addConstraint(Sketcher.Constraint("DistanceY", -1, 1, 9, 3, Q("50 mm")))
sketch2.addConstraint(Sketcher.Constraint("DistanceX", 11, 3, -1, 1, Q("134 mm")))
sketch2.addConstraint(Sketcher.Constraint("DistanceY", -1, 1, 11, 3, Q("49 mm")))
sketch2.addConstraint(Sketcher.Constraint("DistanceX", 13, 3, -1, 1, Q("135 mm")))
sketch2.addConstraint(Sketcher.Constraint("DistanceX", -1, 1, 35, 3, Q("44 mm")))
sketch2.addConstraint(Sketcher.Constraint("DistanceX", 18, 1, 18, 2, Q("57.750913 mm")))
pad2 = body.newObject("PartDesign::Pad", "Pad001")
pad2.Profile = sketch2
pad2.Length = 15
pad2.Reversed = True

sketch3 = body.newObject("Sketcher::SketchObject", "Sketch002")
sketch3.AttachmentSupport = (doc.getObject("XY_Plane"), [""])
sketch3.MapMode = "FlatFace"
sketch3.AttachmentOffset = App.Placement(App.Vector(0, 0, -115), App.Rotation())
sketch3.addGeometry(Part.Circle(App.Vector(-121.2, -50, 0), App.Vector(0, 0, 1), 2.5), False)
sketch3.addGeometry(Part.Circle(App.Vector(0, -50, 0), App.Vector(0, 0, 1), 2.5), False)
sketch3.addGeometry(Part.Circle(App.Vector(121.2, -50, 0), App.Vector(0, 0, 1), 2.5), False)
sketch3.addGeometry(Part.Circle(App.Vector(-135, 0, 0), App.Vector(0, 0, 1), 2.5), False)
sketch3.addGeometry(Part.Circle(App.Vector(-121.2, 50, 0), App.Vector(0, 0, 1), 2.5), False)
sketch3.addGeometry(Part.Circle(App.Vector(0, 50, 0), App.Vector(0, 0, 1), 2.5), False)
sketch3.addGeometry(Part.Circle(App.Vector(121.2, 50, 0), App.Vector(0, 0, 1), 2.5), False)
sketch3.addGeometry(Part.Circle(App.Vector(135, 0, 0), App.Vector(0, 0, 1), 2.5), False)
sketch3.addConstraint(Sketcher.Constraint("Equal", 0, 1))
sketch3.addConstraint(Sketcher.Constraint("Equal", 1, 2))
sketch3.addConstraint(Sketcher.Constraint("Equal", 2, 3))
sketch3.addConstraint(Sketcher.Constraint("Equal", 3, 4))
sketch3.addConstraint(Sketcher.Constraint("Equal", 4, 5))
sketch3.addConstraint(Sketcher.Constraint("Equal", 5, 6))
sketch3.addConstraint(Sketcher.Constraint("Equal", 6, 7))
sketch3.addConstraint(Sketcher.Constraint("Symmetric", 2, 3, 4, 3, -1, 1))
sketch3.addConstraint(Sketcher.Constraint("Symmetric", 1, 3, 5, 3, -1, 1))
sketch3.addConstraint(Sketcher.Constraint("Symmetric", 0, 3, 6, 3, -1, 1))
sketch3.addConstraint(Sketcher.Constraint("Symmetric", 3, 3, 7, 3, -1, 1))
sketch3.addConstraint(Sketcher.Constraint("Symmetric", 0, 3, 2, 3, -2))
sketch3.addConstraint(Sketcher.Constraint("PointOnObject", 1, 3, -2))
sketch3.addConstraint(Sketcher.Constraint("PointOnObject", 3, 3, -1))
sketch3.addConstraint(Sketcher.Constraint("Horizontal", 0, 3, 1, 3))
sketch3.addConstraint(Sketcher.Constraint("Diameter", 0, Q("5 mm")))
sketch3.addConstraint(Sketcher.Constraint("DistanceY", 0, 3, -1, 1, Q("50 mm")))
sketch3.addConstraint(Sketcher.Constraint("DistanceX", 3, 3, -1, 1, Q("135 mm")))
sketch3.addConstraint(Sketcher.Constraint("DistanceX", 0, 3, -1, 1, Q("121.171573 mm")))
pocket1 = body.newObject("PartDesign::Pocket", "Pocket")
pocket1.Profile = sketch3
pocket1.Length = 6.5
pocket1.Reversed = True

sketch4 = body.newObject("Sketcher::SketchObject", "Sketch003")
sketch4.AttachmentSupport = (doc.getObject("XY_Plane"), [""])
sketch4.MapMode = "FlatFace"
sketch4.AttachmentOffset = App.Placement(App.Vector(0, 0, -108.5), App.Rotation())
sketch4.addGeometry(Part.Circle(App.Vector(-121.2, -50, 0), App.Vector(0, 0, 1), 1.6), False)
sketch4.addGeometry(Part.Circle(App.Vector(-135, 0, 0), App.Vector(0, 0, 1), 1.6), False)
sketch4.addGeometry(Part.Circle(App.Vector(0, -50, 0), App.Vector(0, 0, 1), 1.6), False)
sketch4.addGeometry(Part.Circle(App.Vector(-121.2, 50, 0), App.Vector(0, 0, 1), 1.6), False)
sketch4.addGeometry(Part.Circle(App.Vector(0, 50, 0), App.Vector(0, 0, 1), 1.6), False)
sketch4.addGeometry(Part.Circle(App.Vector(121.2, 50, 0), App.Vector(0, 0, 1), 1.6), False)
sketch4.addGeometry(Part.Circle(App.Vector(135, 0, 0), App.Vector(0, 0, 1), 1.6), False)
sketch4.addGeometry(Part.Circle(App.Vector(121.2, -50, 0), App.Vector(0, 0, 1), 1.6), False)
sketch4.addConstraint(Sketcher.Constraint("Equal", 0, 1))
sketch4.addConstraint(Sketcher.Constraint("Equal", 1, 2))
sketch4.addConstraint(Sketcher.Constraint("Equal", 2, 3))
sketch4.addConstraint(Sketcher.Constraint("Equal", 3, 4))
sketch4.addConstraint(Sketcher.Constraint("Equal", 4, 5))
sketch4.addConstraint(Sketcher.Constraint("Equal", 5, 6))
sketch4.addConstraint(Sketcher.Constraint("Equal", 6, 7))
sketch4.addConstraint(Sketcher.Constraint("Symmetric", 2, 3, 4, 3, -1, 1))
sketch4.addConstraint(Sketcher.Constraint("Symmetric", 0, 3, 5, 3, -1, 1))
sketch4.addConstraint(Sketcher.Constraint("Symmetric", 1, 3, 6, 3, -1, 1))
sketch4.addConstraint(Sketcher.Constraint("Symmetric", 3, 3, 7, 3, -1, 1))
sketch4.addConstraint(Sketcher.Constraint("Symmetric", 3, 3, 5, 3, -2))
sketch4.addConstraint(Sketcher.Constraint("PointOnObject", 1, 3, -1))
sketch4.addConstraint(Sketcher.Constraint("PointOnObject", 2, 3, -2))
sketch4.addConstraint(Sketcher.Constraint("Horizontal", 0, 3, 2, 3))
sketch4.addConstraint(Sketcher.Constraint("Diameter", 0, Q("3.2 mm")))
sketch4.addConstraint(Sketcher.Constraint("DistanceY", 0, 3, -1, 1, Q("50 mm")))
sketch4.addConstraint(Sketcher.Constraint("DistanceX", 1, 3, -1, 1, Q("135 mm")))
sketch4.addConstraint(Sketcher.Constraint("DistanceX", 0, 3, -1, 1, Q("121.171573 mm")))
pocket2 = body.newObject("PartDesign::Pocket", "Pocket001")
pocket2.Profile = sketch4
pocket2.Length = 5
pocket2.Reversed = True

doc.recompute()
